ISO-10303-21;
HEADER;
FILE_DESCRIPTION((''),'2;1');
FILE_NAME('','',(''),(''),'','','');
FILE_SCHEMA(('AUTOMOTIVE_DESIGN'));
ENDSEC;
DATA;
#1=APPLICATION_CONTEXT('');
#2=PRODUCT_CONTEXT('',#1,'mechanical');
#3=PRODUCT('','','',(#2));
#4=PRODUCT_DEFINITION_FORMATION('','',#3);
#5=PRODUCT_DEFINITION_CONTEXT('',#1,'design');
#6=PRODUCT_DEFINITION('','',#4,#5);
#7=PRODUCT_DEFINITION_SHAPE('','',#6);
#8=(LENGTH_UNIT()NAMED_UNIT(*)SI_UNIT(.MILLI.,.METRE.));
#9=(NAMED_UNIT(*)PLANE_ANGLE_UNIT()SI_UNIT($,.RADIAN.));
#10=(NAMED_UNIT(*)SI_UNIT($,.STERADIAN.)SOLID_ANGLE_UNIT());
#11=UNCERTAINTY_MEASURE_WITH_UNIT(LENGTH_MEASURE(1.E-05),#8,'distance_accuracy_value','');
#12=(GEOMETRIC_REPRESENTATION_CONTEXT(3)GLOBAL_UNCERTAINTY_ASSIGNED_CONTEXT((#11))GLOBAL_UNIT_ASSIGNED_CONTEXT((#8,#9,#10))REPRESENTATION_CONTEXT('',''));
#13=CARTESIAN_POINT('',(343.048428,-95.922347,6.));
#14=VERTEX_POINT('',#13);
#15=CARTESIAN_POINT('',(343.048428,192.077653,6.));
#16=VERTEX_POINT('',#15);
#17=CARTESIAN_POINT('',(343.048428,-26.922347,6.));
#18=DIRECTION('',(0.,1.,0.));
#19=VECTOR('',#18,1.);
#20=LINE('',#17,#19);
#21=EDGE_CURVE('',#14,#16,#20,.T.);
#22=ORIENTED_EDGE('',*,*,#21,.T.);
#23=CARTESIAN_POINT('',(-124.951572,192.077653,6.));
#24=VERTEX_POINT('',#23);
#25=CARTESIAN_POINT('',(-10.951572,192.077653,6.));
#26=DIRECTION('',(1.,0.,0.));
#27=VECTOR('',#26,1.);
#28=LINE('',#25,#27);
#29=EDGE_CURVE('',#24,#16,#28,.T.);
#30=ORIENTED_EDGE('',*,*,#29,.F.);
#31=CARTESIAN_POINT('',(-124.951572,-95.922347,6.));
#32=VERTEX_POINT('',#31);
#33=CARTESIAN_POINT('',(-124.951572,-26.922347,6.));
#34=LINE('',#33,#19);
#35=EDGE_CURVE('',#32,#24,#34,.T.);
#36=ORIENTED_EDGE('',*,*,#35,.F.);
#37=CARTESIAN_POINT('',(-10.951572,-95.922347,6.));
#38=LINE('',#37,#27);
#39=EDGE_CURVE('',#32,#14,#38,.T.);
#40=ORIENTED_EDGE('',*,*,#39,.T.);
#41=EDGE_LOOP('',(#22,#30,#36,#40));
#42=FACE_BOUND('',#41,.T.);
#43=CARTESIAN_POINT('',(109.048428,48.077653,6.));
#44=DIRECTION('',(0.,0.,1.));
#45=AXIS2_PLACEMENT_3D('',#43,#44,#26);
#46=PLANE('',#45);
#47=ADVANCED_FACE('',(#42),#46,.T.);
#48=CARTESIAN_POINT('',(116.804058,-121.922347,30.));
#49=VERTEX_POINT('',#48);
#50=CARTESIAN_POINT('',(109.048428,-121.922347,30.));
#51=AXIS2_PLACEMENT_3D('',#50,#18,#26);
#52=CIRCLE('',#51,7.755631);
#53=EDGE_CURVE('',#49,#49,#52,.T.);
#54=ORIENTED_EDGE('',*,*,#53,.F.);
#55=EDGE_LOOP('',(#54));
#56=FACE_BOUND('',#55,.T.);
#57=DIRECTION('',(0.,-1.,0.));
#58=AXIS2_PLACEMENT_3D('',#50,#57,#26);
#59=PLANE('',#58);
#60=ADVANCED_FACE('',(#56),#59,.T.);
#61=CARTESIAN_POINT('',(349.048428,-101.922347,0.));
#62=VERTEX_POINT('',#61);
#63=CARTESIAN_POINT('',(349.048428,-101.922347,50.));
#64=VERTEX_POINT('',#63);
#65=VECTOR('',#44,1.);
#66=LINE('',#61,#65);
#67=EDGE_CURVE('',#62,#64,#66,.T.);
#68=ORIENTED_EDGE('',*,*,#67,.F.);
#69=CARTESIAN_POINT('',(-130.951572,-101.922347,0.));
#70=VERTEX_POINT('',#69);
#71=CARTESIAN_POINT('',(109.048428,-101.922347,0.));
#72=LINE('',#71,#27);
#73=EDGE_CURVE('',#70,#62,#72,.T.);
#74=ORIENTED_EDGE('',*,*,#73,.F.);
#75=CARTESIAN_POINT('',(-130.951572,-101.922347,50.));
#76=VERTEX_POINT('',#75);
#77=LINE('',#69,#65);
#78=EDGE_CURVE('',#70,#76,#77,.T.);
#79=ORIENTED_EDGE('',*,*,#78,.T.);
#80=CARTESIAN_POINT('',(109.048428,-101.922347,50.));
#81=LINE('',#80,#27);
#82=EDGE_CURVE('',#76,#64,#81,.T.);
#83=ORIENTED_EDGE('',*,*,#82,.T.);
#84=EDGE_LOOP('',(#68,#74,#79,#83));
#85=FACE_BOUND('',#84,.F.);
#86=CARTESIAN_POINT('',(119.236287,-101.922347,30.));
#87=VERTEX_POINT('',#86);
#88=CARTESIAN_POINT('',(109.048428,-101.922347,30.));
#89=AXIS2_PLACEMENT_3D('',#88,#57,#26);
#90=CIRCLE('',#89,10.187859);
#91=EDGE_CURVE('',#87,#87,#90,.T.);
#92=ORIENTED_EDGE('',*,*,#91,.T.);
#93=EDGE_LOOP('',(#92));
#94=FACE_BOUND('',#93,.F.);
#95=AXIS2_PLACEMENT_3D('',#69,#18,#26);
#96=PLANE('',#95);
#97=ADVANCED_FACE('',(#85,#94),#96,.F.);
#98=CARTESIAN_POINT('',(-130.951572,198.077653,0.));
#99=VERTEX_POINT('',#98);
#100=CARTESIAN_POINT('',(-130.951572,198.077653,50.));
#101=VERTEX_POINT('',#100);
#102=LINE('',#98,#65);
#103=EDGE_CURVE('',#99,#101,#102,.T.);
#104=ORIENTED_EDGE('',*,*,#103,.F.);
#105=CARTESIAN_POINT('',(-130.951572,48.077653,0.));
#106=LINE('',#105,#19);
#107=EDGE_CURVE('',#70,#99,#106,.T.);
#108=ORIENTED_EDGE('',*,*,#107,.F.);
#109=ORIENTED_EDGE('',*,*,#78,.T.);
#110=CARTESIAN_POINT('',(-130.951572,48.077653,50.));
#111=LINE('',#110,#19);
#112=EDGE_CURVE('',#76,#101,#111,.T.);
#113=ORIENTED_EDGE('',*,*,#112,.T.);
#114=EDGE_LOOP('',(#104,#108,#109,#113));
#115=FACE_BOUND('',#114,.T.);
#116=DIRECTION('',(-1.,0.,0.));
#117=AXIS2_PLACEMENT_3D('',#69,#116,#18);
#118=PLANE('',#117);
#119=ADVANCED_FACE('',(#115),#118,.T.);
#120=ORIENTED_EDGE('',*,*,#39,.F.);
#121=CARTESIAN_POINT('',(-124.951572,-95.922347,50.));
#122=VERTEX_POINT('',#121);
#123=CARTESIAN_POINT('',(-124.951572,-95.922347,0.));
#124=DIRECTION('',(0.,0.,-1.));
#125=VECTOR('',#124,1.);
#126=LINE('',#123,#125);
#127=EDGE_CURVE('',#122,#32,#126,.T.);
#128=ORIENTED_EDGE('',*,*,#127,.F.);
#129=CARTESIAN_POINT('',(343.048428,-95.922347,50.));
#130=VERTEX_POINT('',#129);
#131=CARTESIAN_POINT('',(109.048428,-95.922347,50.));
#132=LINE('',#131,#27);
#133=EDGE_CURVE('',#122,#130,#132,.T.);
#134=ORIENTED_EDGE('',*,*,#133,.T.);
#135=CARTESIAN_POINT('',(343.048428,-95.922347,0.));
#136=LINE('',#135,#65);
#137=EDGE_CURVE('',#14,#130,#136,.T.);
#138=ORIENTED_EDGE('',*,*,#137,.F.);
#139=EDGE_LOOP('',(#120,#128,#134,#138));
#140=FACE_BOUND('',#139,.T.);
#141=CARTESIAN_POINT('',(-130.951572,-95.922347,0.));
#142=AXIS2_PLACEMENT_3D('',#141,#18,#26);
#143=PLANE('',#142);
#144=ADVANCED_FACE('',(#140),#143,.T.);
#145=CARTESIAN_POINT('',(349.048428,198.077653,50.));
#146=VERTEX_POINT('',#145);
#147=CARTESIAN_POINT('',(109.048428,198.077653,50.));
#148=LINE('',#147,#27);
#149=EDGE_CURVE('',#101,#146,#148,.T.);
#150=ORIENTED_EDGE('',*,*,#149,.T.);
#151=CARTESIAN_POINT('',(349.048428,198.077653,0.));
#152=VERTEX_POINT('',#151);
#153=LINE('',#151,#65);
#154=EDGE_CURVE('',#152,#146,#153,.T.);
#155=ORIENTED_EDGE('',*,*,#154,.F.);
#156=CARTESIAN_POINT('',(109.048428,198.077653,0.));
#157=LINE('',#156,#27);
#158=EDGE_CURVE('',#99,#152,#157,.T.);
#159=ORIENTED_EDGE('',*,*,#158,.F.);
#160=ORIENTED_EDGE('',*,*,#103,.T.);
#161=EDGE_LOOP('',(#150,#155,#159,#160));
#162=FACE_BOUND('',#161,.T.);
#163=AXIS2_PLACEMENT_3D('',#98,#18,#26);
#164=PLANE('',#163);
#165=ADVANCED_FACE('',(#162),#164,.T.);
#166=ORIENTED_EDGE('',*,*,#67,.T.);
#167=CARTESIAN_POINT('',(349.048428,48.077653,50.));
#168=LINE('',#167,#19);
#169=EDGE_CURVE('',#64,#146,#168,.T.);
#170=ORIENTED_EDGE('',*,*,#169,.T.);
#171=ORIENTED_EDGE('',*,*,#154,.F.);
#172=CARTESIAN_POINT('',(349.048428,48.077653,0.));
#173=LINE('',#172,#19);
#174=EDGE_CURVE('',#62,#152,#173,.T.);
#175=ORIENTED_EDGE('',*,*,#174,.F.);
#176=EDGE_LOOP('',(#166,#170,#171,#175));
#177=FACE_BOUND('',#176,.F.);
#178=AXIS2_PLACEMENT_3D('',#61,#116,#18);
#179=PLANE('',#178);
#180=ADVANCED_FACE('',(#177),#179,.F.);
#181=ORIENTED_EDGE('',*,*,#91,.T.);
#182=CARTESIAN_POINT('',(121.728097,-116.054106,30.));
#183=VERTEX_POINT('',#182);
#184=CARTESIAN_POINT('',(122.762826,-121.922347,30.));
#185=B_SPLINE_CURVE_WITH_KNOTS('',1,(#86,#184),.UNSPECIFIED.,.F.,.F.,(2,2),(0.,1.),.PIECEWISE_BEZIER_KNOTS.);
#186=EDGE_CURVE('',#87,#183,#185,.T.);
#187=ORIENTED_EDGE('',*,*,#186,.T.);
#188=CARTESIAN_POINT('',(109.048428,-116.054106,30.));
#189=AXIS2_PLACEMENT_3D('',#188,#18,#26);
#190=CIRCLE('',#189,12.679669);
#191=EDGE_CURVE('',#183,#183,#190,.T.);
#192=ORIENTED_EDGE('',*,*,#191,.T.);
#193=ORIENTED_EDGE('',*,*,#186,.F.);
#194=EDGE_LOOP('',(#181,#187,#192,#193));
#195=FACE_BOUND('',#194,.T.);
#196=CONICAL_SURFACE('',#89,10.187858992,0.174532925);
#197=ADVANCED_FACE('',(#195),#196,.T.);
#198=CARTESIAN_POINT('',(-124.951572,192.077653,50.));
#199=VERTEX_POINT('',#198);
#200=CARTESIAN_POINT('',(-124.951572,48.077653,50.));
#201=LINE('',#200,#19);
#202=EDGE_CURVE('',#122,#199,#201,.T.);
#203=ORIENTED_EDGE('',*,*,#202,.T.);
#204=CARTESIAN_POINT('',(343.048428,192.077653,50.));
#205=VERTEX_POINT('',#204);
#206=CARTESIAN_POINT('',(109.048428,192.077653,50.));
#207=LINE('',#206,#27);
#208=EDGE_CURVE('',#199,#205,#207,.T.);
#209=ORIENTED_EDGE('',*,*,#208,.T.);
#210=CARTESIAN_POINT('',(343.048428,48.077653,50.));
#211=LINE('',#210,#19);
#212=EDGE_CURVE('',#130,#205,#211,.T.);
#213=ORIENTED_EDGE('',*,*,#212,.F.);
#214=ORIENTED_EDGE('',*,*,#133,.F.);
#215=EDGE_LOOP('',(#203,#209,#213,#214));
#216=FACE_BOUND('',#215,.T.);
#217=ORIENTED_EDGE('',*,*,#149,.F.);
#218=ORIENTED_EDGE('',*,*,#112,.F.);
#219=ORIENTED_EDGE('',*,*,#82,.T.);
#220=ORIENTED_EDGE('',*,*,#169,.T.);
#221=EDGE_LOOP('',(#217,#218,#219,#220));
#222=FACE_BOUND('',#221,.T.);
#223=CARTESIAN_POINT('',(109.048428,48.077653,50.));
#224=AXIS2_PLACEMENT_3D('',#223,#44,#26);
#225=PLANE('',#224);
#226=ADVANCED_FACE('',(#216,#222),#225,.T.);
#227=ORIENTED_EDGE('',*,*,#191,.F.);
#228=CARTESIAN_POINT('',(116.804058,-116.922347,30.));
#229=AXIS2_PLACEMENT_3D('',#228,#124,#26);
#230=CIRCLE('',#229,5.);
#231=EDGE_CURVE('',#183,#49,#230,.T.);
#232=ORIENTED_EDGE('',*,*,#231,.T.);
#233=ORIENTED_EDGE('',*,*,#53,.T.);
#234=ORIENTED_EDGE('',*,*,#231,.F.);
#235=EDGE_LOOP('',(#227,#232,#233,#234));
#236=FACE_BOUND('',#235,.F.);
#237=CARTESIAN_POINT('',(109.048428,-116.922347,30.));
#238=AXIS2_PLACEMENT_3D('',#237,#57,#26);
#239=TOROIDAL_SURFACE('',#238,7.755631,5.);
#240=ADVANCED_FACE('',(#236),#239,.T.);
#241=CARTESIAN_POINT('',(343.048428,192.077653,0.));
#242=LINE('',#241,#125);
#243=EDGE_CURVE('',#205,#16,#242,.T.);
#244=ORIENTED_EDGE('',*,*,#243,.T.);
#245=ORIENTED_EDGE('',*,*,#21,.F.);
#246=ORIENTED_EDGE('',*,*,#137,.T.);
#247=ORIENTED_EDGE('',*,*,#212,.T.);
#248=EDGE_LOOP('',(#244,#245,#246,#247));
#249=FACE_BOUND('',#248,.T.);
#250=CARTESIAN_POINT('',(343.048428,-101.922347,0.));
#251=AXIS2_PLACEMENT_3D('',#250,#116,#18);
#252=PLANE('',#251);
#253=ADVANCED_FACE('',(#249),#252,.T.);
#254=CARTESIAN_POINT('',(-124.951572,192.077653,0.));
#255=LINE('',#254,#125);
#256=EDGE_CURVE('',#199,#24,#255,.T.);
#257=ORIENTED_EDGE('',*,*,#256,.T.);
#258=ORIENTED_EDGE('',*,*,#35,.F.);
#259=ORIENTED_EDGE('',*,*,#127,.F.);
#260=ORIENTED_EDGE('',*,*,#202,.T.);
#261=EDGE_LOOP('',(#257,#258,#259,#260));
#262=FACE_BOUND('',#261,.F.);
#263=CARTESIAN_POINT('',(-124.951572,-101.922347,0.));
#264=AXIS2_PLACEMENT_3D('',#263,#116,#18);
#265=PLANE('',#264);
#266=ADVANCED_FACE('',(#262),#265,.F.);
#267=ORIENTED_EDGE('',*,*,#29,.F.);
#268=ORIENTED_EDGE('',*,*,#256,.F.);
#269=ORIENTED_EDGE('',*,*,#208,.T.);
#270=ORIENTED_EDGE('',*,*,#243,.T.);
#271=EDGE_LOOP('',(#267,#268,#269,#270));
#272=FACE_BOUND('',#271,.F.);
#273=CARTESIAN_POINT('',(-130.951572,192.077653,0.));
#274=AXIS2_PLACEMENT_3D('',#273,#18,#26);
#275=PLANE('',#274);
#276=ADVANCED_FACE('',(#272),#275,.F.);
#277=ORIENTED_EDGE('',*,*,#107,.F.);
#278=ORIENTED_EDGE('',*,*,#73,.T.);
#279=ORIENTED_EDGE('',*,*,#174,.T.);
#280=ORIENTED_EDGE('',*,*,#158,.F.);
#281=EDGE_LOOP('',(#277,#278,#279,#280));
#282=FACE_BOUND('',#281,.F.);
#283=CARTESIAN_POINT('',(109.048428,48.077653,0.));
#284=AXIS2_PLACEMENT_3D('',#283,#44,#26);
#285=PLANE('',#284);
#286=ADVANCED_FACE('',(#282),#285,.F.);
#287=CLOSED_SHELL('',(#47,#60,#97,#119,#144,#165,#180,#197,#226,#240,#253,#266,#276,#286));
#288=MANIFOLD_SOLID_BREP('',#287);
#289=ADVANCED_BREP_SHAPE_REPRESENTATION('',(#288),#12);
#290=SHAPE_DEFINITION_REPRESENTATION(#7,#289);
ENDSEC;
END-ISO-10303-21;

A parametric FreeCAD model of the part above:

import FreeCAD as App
import Part
import Sketcher
from FreeCAD import Vector


def edges_at(feature, points):
    """Names of the edges that pass closest to the given points."""
    edges = feature.Shape.Edges
    near = lambda p: min(range(len(edges)), key=lambda i: edges[i].distToShape(Part.Vertex(*p))[0])
    return sorted({f"Edge{near(p) + 1}" for p in points})


def faces_at(feature, points):
    """Names of the faces that lie closest to the given points."""
    faces = feature.Shape.Faces
    near = lambda p: min(range(len(faces)), key=lambda i: faces[i].distToShape(Part.Vertex(*p))[0])
    return sorted({f"Face{near(p) + 1}" for p in points})

doc = App.newDocument("Part")
body = doc.addObject("PartDesign::Body", "Body")

sketch1 = doc.addObject("Sketcher::SketchObject", "Sketch")
body.addObject(sketch1)
sketch1.AttachmentSupport = (doc.XY_Plane, [""])
sketch1.MapMode = "FlatFace"
sketch1.addGeometry(Part.LineSegment(Vector(-131, 198, 0), Vector(-131, -102, 0)), False)
sketch1.addGeometry(Part.LineSegment(Vector(-131, -102, 0), Vector(349, -102, 0)), False)
sketch1.addGeometry(Part.LineSegment(Vector(349, -102, 0), Vector(349, 198, 0)), False)
sketch1.addGeometry(Part.LineSegment(Vector(349, 198, 0), Vector(-131, 198, 0)), False)
sketch1.addConstraint(Sketcher.Constraint("Coincident", 0, 2, 1, 1))
sketch1.addConstraint(Sketcher.Constraint("Coincident", 1, 2, 2, 1))
sketch1.addConstraint(Sketcher.Constraint("Coincident", 2, 2, 3, 1))
sketch1.addConstraint(Sketcher.Constraint("Coincident", 3, 2, 0, 1))
sketch1.addConstraint(Sketcher.Constraint("Vertical", 0))
sketch1.addConstraint(Sketcher.Constraint("Horizontal", 1))
sketch1.addConstraint(Sketcher.Constraint("Vertical", 2))
sketch1.addConstraint(Sketcher.Constraint("Horizontal", 3))
sketch1.addConstraint(Sketcher.Constraint("DistanceX", 1, 1, 1, 2, 480.0))
sketch1.addConstraint(Sketcher.Constraint("DistanceY", 0, 2, 0, 1, 300.0))
sketch1.addConstraint(Sketcher.Constraint("DistanceX", 0, 2, -1, 1, 130.951572))
sketch1.addConstraint(Sketcher.Constraint("DistanceY", 0, 2, -1, 1, 101.922347))
pad1 = doc.addObject("PartDesign::Pad", "Pad")
body.addObject(pad1)
pad1.Profile = sketch1
pad1.Length = 50
doc.recompute()

thickness = doc.addObject("PartDesign::Thickness", "Thickness")
body.addObject(thickness)
thickness.Base = (pad1, faces_at(pad1, [(109.048, 48.078, 50)]))
thickness.Value = 6
thickness.Reversed = True
thickness.Join = "Arc"

sketch2 = doc.addObject("Sketcher::SketchObject", "Sketch001")
body.addObject(sketch2)
sketch2.AttachmentSupport = (doc.XZ_Plane, [""])
sketch2.MapMode = "FlatFace"
sketch2.AttachmentOffset = App.Placement(Vector(0, 0, 101.922347), App.Rotation())
sketch2.addGeometry(Part.Circle(Vector(109, 30, 0), Vector(0, 0, 1), 10), False)
sketch2.addConstraint(Sketcher.Constraint("DistanceY", -1, 1, 0, 3, 30.0))
sketch2.addConstraint(Sketcher.Constraint("Diameter", 0, 20.375718))
sketch2.addConstraint(Sketcher.Constraint("DistanceX", -1, 1, 0, 3, 109.048428))
pad2 = doc.addObject("PartDesign::Pad", "Pad001")
body.addObject(pad2)
pad2.Profile = sketch2
pad2.Length = 20
pad2.TaperAngle = 10
doc.recompute()

fillet = doc.addObject("PartDesign::Fillet", "Fillet")
body.addObject(fillet)
fillet.Base = (pad2, edges_at(pad2, [(95.334, -121.922, 30)]))
fillet.Radius = 5

doc.recompute()
